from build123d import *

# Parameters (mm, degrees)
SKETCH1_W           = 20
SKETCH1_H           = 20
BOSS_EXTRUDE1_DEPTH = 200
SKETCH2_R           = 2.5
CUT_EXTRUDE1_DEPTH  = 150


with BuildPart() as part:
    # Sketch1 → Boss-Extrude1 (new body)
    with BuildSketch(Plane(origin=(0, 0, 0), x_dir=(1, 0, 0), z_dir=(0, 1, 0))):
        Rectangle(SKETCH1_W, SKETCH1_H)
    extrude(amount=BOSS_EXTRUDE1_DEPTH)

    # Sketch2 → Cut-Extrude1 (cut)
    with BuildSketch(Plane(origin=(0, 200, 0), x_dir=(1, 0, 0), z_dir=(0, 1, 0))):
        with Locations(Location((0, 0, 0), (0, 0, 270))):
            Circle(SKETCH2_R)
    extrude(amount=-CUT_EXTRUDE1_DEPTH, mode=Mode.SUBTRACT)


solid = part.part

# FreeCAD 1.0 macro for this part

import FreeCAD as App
import Part
import Sketcher
Q = App.Units.Quantity


def add_polygon(sketch, points):
    """Adds a closed chain of lines whose ends are joined by coincident constraints."""
    first, n = sketch.GeometryCount, len(points)
    for a, b in zip(points, points[1:] + points[:1]):
        sketch.addGeometry(Part.LineSegment(App.Vector(*a, 0), App.Vector(*b, 0)), False)
    for i in range(n):
        sketch.addConstraint(Sketcher.Constraint("Coincident", first + i, 2, first + (i + 1) % n, 1))

doc = App.newDocument("Part")
body = doc.addObject("PartDesign::Body", "Body")

sketch1 = body.newObject("Sketcher::SketchObject", "Sketch")
sketch1.AttachmentSupport = (doc.getObject("XZ_Plane"), [""])
sketch1.MapMode = "FlatFace"
add_polygon(sketch1, [(-10, -10), (-10, 10), (10, 10), (10, -10)])
sketch1.addConstraint([
    Sketcher.Constraint("Vertical", 0),
    Sketcher.Constraint("Horizontal", 1),
    Sketcher.Constraint("Vertical", 2),
    Sketcher.Constraint("Horizontal", 3),
    Sketcher.Constraint("Symmetric", 0, 2, 2, 2, -1, 1),
    Sketcher.Constraint("Equal", 3, 0),
    Sketcher.Constraint("DistanceX", 1, 1, 1, 2, Q("20 mm")),
])
pad1 = body.newObject("PartDesign::Pad", "Pad")
pad1.Profile = sketch1
pad1.Length = 200
pad1.Reversed = True

sketch2 = body.newObject("Sketcher::SketchObject", "Sketch001")
sketch2.AttachmentSupport = (doc.getObject("XZ_Plane"), [""])
sketch2.MapMode = "FlatFace"
sketch2.AttachmentOffset = App.Placement(App.Vector(0, 0, -200), App.Rotation())
sketch2.addGeometry(Part.Circle(App.Vector(0, 0, 0), App.Vector(0, 0, 1), 2.5), False)
sketch2.addConstraint([
    Sketcher.Constraint("Coincident", 0, 3, -1, 1),
    Sketcher.Constraint("Diameter", 0, Q("5 mm")),
])
pocket1 = body.newObject("PartDesign::Pocket", "Pocket")
pocket1.Profile = sketch2
pocket1.Length = 150
pocket1.Reversed = True

doc.recompute()
